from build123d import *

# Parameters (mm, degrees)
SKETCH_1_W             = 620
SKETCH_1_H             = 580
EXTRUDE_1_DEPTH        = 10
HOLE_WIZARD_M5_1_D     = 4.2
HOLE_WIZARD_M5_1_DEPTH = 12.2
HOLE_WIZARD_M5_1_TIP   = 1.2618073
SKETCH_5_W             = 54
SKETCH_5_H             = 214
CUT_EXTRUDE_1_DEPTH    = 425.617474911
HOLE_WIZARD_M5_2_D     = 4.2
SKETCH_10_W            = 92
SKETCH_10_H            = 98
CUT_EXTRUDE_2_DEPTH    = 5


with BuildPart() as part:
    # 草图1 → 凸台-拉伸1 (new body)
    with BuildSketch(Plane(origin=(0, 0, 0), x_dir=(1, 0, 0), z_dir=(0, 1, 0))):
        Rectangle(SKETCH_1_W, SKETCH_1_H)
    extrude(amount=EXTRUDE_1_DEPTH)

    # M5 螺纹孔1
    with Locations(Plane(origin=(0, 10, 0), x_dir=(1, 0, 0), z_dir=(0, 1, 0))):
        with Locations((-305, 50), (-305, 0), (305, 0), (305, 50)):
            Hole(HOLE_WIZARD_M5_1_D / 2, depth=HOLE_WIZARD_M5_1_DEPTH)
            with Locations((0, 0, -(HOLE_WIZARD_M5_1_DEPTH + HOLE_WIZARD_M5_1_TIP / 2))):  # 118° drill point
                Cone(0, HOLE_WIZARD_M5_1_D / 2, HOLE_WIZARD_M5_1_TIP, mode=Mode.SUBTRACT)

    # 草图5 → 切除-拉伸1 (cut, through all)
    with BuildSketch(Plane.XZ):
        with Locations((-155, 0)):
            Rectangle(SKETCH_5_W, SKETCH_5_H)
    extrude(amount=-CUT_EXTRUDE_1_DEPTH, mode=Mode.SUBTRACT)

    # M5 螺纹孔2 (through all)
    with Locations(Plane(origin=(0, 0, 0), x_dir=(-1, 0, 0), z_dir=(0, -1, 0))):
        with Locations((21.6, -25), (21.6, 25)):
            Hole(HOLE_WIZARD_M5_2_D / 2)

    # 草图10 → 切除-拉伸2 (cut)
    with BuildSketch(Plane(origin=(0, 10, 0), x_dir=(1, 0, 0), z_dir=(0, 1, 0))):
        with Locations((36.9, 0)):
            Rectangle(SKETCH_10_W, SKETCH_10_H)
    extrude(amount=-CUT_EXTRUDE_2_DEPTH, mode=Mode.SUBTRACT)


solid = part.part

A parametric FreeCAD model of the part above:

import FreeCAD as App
import Part
import Sketcher

V = App.Vector
Q = App.Units.Quantity


def add_polygon(sketch, points):
    """Adds a closed chain of lines whose ends are joined by coincident constraints."""
    first, n = sketch.GeometryCount, len(points)
    for a, b in zip(points, points[1:] + points[:1]):
        sketch.addGeometry(Part.LineSegment(App.Vector(*a, 0), App.Vector(*b, 0)), False)
    for i in range(n):
        sketch.addConstraint(Sketcher.Constraint("Coincident", first + i, 2, first + (i + 1) % n, 1))

doc = App.newDocument("Part")
body = doc.addObject("PartDesign::Body", "Body")

# Sketch on XZ plane
sketch1 = body.newObject("Sketcher::SketchObject", "Sketch")
sketch1.AttachmentSupport = (doc.getObject("XZ_Plane"), [""])
sketch1.MapMode = "FlatFace"
add_polygon(sketch1, [(-310, -290), (-310, 290), (310, 290), (310, -290)])  # lines 0-3
sketch1.addConstraint([
    Sketcher.Constraint("Vertical", 0),
    Sketcher.Constraint("Horizontal", 1),
    Sketcher.Constraint("Vertical", 2),
    Sketcher.Constraint("Horizontal", 3),
    Sketcher.Constraint("Symmetric", 0, 2, 2, 2, -1, 1),
    Sketcher.Constraint("DistanceX", 1, 1, 1, 2, Q("620 mm")),
    Sketcher.Constraint("DistanceY", 0, 1, 0, 2, Q("580 mm")),
])
pad1 = body.newObject("PartDesign::Pad", "Pad")
pad1.Profile = sketch1
pad1.Length = 10
pad1.Reversed = True

# Sketch on XZ plane
sketch2 = body.newObject("Sketcher::SketchObject", "Sketch001")
sketch2.AttachmentSupport = (doc.getObject("XZ_Plane"), [""])
sketch2.MapMode = "FlatFace"
sketch2.AttachmentOffset = App.Placement(V(0, 0, -10), App.Rotation())
sketch2.addGeometry([
    Part.Circle(V(-305, -50, 0), V(0, 0, 1), 2.1),
    Part.Circle(V(-305, 0, 0), V(0, 0, 1), 2.1),
    Part.Circle(V(305, 0, 0), V(0, 0, 1), 2.1),
    Part.Circle(V(305, -50, 0), V(0, 0, 1), 2.1),
], False)
sketch2.addConstraint([
    Sketcher.Constraint("Equal", 0, 1),
    Sketcher.Constraint("Equal", 1, 2),
    Sketcher.Constraint("Equal", 2, 3),
    Sketcher.Constraint("Symmetric", 1, 3, 2, 3, -1, 1),
    Sketcher.Constraint("Symmetric", 0, 3, 3, 3, -2),
    Sketcher.Constraint("PointOnObject", 1, 3, -1),
    Sketcher.Constraint("Vertical", 0, 3, 1, 3),
    Sketcher.Constraint("Diameter", 0, Q("4.2 mm")),
    Sketcher.Constraint("DistanceX", 0, 3, -1, 1, Q("305 mm")),
    Sketcher.Constraint("DistanceY", 0, 3, -1, 1, Q("50 mm")),
])
doc.recompute()
hole = body.newObject("PartDesign::Hole", "Hole")
hole.Profile = sketch2
hole.ThreadType = "None"
hole.Diameter = 4.2
hole.DepthType = "Dimension"
hole.Depth = 12.2
hole.DrillPoint = "Angled"
hole.DrillPointAngle = 118
hole.Reversed = True

# Sketch on XZ plane
sketch3 = body.newObject("Sketcher::SketchObject", "Sketch002")
sketch3.AttachmentSupport = (doc.getObject("XZ_Plane"), [""])
sketch3.MapMode = "FlatFace"
add_polygon(sketch3, [(-182, 107), (-182, -107), (-128, -107), (-128, 107)])  # lines 0-3
sketch3.addConstraint([
    Sketcher.Constraint("Vertical", 0),
    Sketcher.Constraint("Horizontal", 1),
    Sketcher.Constraint("Vertical", 2),
    Sketcher.Constraint("Horizontal", 3),
    Sketcher.Constraint("DistanceX", 1, 1, 1, 2, Q("54 mm")),
    Sketcher.Constraint("DistanceY", 0, 2, 0, 1, Q("214 mm")),
    Sketcher.Constraint("DistanceX", 0, 2, -1, 1, Q("182 mm")),
    Sketcher.Constraint("DistanceY", 0, 2, -1, 1, Q("107 mm")),
])
pocket1 = body.newObject("PartDesign::Pocket", "Pocket")
pocket1.Profile = sketch3
pocket1.Type = "ThroughAll"

# Sketch on XZ plane
sketch4 = body.newObject("Sketcher::SketchObject", "Sketch003")
sketch4.AttachmentSupport = (doc.getObject("XZ_Plane"), [""])
sketch4.MapMode = "FlatFace"
sketch4.addGeometry([
    Part.Circle(V(-21.6, 25, 0), V(0, 0, 1), 2.1),
    Part.Circle(V(-21.6, -25, 0), V(0, 0, 1), 2.1),
], False)
sketch4.addConstraint([
    Sketcher.Constraint("Equal", 0, 1),
    Sketcher.Constraint("Symmetric", 0, 3, 1, 3, -1),
    Sketcher.Constraint("Diameter", 0, Q("4.2 mm")),
    Sketcher.Constraint("DistanceY", -1, 1, 0, 3, Q("25 mm")),
    Sketcher.Constraint("DistanceX", 0, 3, -1, 1, Q("21.6 mm")),
])
doc.recompute()
hole2 = body.newObject("PartDesign::Hole", "Hole001")
hole2.Profile = sketch4
hole2.ThreadType = "None"
hole2.Diameter = 4.2
hole2.DepthType = "ThroughAll"

# Sketch on XZ plane
sketch5 = body.newObject("Sketcher::SketchObject", "Sketch004")
sketch5.AttachmentSupport = (doc.getObject("XZ_Plane"), [""])
sketch5.MapMode = "FlatFace"
sketch5.AttachmentOffset = App.Placement(V(0, 0, -10), App.Rotation())
add_polygon(sketch5, [(-9.1, -49), (-9.1, 49), (82.9, 49), (82.9, -49)])  # lines 0-3
sketch5.addConstraint([
    Sketcher.Constraint("Vertical", 0),
    Sketcher.Constraint("Horizontal", 1),
    Sketcher.Constraint("Vertical", 2),
    Sketcher.Constraint("Horizontal", 3),
    Sketcher.Constraint("DistanceX", 1, 1, 1, 2, Q("92 mm")),
    Sketcher.Constraint("DistanceY", 0, 1, 0, 2, Q("98 mm")),
    Sketcher.Constraint("DistanceY", -1, 1, 0, 2, Q("49 mm")),
    Sketcher.Constraint("DistanceX", 0, 2, -1, 1, Q("9.1 mm")),
])
pocket2 = body.newObject("PartDesign::Pocket", "Pocket001")
pocket2.Profile = sketch5
pocket2.Length = 5
pocket2.Reversed = True

doc.recompute()
